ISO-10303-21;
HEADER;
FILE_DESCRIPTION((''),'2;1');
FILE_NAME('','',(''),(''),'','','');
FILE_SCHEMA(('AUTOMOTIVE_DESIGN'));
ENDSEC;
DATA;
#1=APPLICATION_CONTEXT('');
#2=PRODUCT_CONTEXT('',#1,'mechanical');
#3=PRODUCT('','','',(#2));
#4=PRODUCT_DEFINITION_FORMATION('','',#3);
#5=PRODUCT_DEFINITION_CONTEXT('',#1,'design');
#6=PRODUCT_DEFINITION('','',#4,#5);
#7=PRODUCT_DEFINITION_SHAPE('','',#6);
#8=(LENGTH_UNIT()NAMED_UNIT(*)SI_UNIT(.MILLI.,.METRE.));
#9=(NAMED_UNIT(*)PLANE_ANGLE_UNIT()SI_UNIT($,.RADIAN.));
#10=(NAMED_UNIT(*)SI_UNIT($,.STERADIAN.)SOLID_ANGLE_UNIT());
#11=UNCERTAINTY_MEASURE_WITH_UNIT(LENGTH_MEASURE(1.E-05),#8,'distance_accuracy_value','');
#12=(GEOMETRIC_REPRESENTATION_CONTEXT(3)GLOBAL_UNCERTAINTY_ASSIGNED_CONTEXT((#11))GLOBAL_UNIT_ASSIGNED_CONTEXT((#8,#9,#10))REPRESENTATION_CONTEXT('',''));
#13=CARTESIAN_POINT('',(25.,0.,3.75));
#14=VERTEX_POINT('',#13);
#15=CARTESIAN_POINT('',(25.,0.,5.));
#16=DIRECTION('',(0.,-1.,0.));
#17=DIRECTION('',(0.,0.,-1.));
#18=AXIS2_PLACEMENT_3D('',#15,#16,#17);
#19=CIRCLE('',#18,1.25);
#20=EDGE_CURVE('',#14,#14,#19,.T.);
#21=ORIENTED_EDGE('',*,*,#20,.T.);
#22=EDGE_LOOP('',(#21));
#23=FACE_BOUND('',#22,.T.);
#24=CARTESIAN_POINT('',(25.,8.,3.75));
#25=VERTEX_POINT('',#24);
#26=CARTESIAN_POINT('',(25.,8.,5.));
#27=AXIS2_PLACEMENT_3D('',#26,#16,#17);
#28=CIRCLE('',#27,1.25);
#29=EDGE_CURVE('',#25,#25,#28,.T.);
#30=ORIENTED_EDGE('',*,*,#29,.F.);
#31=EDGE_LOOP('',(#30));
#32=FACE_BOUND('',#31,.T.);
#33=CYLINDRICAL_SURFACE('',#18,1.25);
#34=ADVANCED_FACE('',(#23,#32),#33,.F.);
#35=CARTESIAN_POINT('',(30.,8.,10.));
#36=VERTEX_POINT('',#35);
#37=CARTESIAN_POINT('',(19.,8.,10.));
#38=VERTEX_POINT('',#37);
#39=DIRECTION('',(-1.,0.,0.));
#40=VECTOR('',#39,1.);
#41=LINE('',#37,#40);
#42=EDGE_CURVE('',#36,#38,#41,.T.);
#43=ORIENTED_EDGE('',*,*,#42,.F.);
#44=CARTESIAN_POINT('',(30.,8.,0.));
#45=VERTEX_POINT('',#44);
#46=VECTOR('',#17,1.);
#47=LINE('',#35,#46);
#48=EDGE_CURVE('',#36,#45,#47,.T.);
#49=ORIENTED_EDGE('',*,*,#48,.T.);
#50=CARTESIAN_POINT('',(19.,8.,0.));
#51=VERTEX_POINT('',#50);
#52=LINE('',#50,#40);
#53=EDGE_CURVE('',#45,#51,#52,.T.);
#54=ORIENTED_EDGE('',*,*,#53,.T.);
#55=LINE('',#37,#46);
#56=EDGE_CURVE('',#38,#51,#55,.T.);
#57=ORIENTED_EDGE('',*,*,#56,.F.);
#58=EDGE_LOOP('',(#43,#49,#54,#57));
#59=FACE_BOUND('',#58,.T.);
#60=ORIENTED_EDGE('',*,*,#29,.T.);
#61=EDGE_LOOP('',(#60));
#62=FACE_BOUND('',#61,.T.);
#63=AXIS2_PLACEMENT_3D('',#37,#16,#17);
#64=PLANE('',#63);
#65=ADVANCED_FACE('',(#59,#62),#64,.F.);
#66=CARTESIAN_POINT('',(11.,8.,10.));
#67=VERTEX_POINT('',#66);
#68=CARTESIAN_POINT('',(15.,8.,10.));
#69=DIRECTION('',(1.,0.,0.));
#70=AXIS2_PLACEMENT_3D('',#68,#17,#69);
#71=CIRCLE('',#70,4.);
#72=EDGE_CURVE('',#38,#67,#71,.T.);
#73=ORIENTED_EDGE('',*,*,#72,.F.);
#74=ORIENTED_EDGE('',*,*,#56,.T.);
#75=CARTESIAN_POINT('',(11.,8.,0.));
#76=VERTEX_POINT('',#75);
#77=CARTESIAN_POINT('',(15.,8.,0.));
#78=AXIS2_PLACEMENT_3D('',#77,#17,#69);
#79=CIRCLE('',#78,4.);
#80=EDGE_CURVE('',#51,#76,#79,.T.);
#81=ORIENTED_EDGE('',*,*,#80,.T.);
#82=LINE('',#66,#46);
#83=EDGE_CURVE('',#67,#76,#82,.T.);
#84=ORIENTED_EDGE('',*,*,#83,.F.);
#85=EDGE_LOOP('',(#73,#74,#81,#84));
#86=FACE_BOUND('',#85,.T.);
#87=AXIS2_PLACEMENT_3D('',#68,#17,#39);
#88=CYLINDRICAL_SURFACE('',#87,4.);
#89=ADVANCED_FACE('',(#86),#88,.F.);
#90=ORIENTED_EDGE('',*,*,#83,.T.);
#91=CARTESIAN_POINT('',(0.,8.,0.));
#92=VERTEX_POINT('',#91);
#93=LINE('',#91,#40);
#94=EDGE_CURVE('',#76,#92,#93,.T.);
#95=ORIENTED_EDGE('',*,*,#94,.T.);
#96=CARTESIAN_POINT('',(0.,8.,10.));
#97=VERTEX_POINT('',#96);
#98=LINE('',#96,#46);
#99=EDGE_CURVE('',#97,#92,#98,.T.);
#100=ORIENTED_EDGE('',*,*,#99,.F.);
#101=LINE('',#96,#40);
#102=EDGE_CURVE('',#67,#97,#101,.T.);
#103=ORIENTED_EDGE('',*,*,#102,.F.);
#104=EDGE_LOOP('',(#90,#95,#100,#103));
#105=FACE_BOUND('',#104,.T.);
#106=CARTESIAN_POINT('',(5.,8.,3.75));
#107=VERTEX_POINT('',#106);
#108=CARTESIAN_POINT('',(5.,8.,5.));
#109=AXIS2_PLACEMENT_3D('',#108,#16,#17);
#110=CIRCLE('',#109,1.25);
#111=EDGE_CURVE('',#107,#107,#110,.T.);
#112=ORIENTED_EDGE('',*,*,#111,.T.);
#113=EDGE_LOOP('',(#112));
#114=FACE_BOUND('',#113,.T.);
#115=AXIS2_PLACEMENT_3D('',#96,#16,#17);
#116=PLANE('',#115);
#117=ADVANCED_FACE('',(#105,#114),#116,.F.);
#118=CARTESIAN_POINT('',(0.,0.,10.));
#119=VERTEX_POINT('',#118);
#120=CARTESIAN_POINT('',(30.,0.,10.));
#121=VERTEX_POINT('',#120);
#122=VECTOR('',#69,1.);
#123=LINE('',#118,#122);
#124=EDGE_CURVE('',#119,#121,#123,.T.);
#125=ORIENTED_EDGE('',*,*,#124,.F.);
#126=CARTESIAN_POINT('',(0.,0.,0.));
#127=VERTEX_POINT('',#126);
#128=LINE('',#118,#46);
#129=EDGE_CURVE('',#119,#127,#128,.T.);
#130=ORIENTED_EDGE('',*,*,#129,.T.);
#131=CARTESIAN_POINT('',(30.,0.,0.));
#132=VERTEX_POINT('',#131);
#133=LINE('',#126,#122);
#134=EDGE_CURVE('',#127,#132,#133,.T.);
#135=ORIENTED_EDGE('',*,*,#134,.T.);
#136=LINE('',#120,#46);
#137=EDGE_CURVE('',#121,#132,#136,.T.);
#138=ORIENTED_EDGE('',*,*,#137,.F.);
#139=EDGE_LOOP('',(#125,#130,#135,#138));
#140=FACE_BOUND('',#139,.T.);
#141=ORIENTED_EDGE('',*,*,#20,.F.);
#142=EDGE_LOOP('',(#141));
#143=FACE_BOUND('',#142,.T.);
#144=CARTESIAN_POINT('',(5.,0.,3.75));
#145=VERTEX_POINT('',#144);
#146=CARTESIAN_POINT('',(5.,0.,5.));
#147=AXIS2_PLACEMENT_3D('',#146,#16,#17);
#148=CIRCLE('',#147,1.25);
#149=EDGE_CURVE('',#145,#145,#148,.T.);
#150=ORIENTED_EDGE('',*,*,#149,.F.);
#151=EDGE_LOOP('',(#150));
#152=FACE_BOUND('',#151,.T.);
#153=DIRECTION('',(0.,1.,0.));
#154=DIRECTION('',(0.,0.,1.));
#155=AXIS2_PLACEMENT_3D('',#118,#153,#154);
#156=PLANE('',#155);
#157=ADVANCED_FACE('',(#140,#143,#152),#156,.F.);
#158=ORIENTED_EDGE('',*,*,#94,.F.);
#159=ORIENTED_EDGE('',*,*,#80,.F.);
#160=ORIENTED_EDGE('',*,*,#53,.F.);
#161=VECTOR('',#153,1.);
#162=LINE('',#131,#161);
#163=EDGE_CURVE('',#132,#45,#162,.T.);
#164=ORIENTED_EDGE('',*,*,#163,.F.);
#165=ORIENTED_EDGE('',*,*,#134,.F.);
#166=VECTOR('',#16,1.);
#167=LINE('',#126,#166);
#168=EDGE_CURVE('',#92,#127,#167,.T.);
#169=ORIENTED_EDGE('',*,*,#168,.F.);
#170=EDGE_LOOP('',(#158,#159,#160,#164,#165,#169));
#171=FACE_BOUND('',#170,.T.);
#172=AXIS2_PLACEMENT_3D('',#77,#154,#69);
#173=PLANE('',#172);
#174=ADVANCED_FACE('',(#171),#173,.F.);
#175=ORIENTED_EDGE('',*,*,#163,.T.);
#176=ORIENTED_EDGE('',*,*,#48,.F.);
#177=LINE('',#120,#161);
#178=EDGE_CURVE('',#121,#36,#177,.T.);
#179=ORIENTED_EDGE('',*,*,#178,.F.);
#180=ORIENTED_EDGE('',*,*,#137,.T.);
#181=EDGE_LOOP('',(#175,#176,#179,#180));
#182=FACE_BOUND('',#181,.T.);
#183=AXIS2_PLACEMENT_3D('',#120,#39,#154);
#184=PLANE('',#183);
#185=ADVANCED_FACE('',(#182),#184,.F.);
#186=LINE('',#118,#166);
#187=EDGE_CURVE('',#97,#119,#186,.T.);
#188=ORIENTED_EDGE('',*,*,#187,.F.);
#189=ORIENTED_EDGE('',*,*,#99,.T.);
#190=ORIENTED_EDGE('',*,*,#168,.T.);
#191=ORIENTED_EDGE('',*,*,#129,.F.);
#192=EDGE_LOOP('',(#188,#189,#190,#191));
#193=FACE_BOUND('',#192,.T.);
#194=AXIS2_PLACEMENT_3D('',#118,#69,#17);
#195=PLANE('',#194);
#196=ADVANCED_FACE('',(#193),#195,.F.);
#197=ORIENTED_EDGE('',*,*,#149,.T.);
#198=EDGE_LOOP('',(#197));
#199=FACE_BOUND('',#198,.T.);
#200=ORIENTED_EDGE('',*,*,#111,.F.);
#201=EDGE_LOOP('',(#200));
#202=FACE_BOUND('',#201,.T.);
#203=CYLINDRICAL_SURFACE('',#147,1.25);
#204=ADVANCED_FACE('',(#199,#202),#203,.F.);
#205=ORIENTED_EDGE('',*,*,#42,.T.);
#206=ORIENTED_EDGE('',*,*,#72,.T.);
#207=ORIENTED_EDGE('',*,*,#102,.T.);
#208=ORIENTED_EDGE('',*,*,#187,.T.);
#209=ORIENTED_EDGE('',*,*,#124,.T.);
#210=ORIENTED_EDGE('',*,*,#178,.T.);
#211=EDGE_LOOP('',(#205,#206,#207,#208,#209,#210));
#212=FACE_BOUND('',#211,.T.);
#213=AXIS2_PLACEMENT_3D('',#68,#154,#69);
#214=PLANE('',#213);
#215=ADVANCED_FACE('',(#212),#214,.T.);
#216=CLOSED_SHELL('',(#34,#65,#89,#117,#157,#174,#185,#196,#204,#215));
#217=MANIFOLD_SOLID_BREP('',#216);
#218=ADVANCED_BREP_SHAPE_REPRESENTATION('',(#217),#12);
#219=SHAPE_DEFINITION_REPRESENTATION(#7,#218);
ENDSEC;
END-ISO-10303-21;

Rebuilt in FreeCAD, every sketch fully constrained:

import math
import FreeCAD as App
import Part
import Sketcher
from FreeCAD import Vector

doc = App.newDocument("Part")
body = doc.addObject("PartDesign::Body", "Body")

# Sketch on XY plane
sketch1 = body.newObject("Sketcher::SketchObject", "Sketch")
sketch1.AttachmentSupport = (doc.getObject("XY_Plane"), [""])
sketch1.MapMode = "FlatFace"
sketch1.addGeometry([
    Part.LineSegment(Vector(30, 8, 0), Vector(19, 8, 0)),  # 0
    Part.ArcOfCircle(Part.Circle(Vector(15, 8, 0), Vector(0, 0, 1), 4), math.radians(180), math.radians(360)),  # 1
    Part.LineSegment(Vector(11, 8, 0), Vector(0, 8, 0)),  # 2
    Part.LineSegment(Vector(0, 8, 0), Vector(0, 0, 0)),  # 3
    Part.LineSegment(Vector(0, 0, 0), Vector(30, 0, 0)),  # 4
    Part.LineSegment(Vector(30, 0, 0), Vector(30, 8, 0)),  # 5
], False)
sketch1.addConstraint([
    Sketcher.Constraint("Coincident", 0, 2, 1, 2),
    Sketcher.Constraint("Coincident", 1, 1, 2, 1),
    Sketcher.Constraint("Coincident", 2, 2, 3, 1),
    Sketcher.Constraint("Coincident", 3, 2, 4, 1),
    Sketcher.Constraint("Coincident", 4, 2, 5, 1),
    Sketcher.Constraint("Coincident", 5, 2, 0, 1),
    Sketcher.Constraint("Horizontal", 0),
    Sketcher.Constraint("Horizontal", 2),
    Sketcher.Constraint("Vertical", 3),
    Sketcher.Constraint("Horizontal", 4),
    Sketcher.Constraint("Vertical", 5),
    Sketcher.Constraint("Coincident", 3, 2, -1, 1),
    Sketcher.Constraint("Horizontal", 1, 3, 0, 2),
    Sketcher.Constraint("Horizontal", 0, 2, 1, 1),
    Sketcher.Constraint("Equal", 0, 2),
    Sketcher.Constraint("Radius", 1, 4.0),
    Sketcher.Constraint("DistanceX", 0, 2, 0, 1, 11.0),
    Sketcher.Constraint("DistanceY", 3, 2, 3, 1, 8.0),
])
pad1 = body.newObject("PartDesign::Pad", "Pad")
pad1.Profile = sketch1
pad1.Length = 10

# Sketch on XZ plane
sketch2 = body.newObject("Sketcher::SketchObject", "Sketch001")
sketch2.AttachmentSupport = (doc.getObject("XZ_Plane"), [""])
sketch2.MapMode = "FlatFace"
sketch2.addGeometry([
    Part.Circle(Vector(5, 5, 0), Vector(0, 0, 1), 1.2),
    Part.Circle(Vector(25, 5, 0), Vector(0, 0, 1), 1.2),
], False)
sketch2.addConstraint([
    Sketcher.Constraint("Equal", 0, 1),
    Sketcher.Constraint("Horizontal", 0, 3, 1, 3),
    Sketcher.Constraint("Diameter", 0, 2.5),
    Sketcher.Constraint("DistanceX", -1, 1, 0, 3, 5.0),
    Sketcher.Constraint("DistanceY", -1, 1, 0, 3, 5.0),
    Sketcher.Constraint("DistanceX", -1, 1, 1, 3, 25.0),
])
doc.recompute()
hole = body.newObject("PartDesign::Hole", "Hole")
hole.Profile = sketch2
hole.ThreadType = "None"
hole.Diameter = 2.5
hole.DepthType = "ThroughAll"

doc.recompute()
